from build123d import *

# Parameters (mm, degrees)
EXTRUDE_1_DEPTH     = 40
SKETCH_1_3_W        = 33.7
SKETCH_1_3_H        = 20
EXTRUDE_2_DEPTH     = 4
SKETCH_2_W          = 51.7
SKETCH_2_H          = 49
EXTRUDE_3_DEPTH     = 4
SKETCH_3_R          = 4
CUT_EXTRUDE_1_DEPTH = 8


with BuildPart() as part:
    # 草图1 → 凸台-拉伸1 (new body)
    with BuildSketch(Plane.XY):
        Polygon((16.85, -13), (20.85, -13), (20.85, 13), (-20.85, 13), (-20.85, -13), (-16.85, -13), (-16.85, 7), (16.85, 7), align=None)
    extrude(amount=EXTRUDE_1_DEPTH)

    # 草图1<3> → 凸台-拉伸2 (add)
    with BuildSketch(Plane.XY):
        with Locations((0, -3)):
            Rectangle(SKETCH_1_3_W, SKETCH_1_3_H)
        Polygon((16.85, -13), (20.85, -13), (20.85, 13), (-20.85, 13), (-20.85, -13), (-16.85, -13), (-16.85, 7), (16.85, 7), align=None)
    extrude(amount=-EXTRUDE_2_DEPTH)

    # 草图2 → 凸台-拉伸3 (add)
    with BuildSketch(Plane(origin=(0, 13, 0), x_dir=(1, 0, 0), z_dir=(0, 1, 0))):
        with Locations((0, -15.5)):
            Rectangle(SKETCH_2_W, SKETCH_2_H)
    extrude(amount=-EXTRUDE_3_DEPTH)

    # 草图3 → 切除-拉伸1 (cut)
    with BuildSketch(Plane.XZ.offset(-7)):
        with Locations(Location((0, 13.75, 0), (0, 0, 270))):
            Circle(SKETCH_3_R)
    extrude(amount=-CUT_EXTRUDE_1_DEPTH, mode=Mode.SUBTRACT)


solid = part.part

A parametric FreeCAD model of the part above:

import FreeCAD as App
import Part
import Sketcher
Q = App.Units.Quantity


def add_polygon(sketch, points):
    """Adds a closed chain of lines whose ends are joined by coincident constraints."""
    first, n = sketch.GeometryCount, len(points)
    for a, b in zip(points, points[1:] + points[:1]):
        sketch.addGeometry(Part.LineSegment(App.Vector(*a, 0), App.Vector(*b, 0)), False)
    for i in range(n):
        sketch.addConstraint(Sketcher.Constraint("Coincident", first + i, 2, first + (i + 1) % n, 1))

doc = App.newDocument("Part")
params = doc.addObject("Spreadsheet::Sheet", "Params")
for row, (alias, value) in enumerate([
    ("sketch1_width", "4 mm"),
    ("sketch1_height", "26 mm"),
    ("sketch1_height2", "20 mm"),
    ("sketch1_width2", "41.7 mm"),
    ("pad1_length", "40 mm"),
    ("sketch2_height", "26 mm"),
    ("sketch2_width", "41.7 mm"),
    ("pad2_length", "4 mm"),
    ("sketch3_height", "49 mm"),
    ("sketch3_width", "51.7 mm"),
    ("pad3_length", "4 mm"),
    ("sketch4_diameter", "8 mm"),
    ("pocket1_length", "8 mm"),
], start=1):
    params.set(f"A{row}", alias)
    params.set(f"B{row}", "=" + value)
    params.setAlias(f"B{row}", alias)

body = doc.addObject("PartDesign::Body", "Body")

sketch1 = body.newObject("Sketcher::SketchObject", "Sketch")
sketch1.AttachmentSupport = (doc.getObject("XY_Plane"), [""])
sketch1.MapMode = "FlatFace"
add_polygon(sketch1, [(16.9, -13), (20.9, -13), (20.9, 13), (-20.9, 13), (-20.9, -13), (-16.9, -13), (-16.9, 7), (16.9, 7)])
sketch1.addConstraint(Sketcher.Constraint("Horizontal", 0))
sketch1.addConstraint(Sketcher.Constraint("Vertical", 1))
sketch1.addConstraint(Sketcher.Constraint("Horizontal", 2))
sketch1.addConstraint(Sketcher.Constraint("Vertical", 3))
sketch1.addConstraint(Sketcher.Constraint("Horizontal", 4))
sketch1.addConstraint(Sketcher.Constraint("Vertical", 5))
sketch1.addConstraint(Sketcher.Constraint("Horizontal", 6))
sketch1.addConstraint(Sketcher.Constraint("Vertical", 7))
sketch1.addConstraint(Sketcher.Constraint("Symmetric", 0, 2, 2, 2, -1, 1))
sketch1.addConstraint(Sketcher.Constraint("Symmetric", 4, 2, 7, 2, -2))
sketch1.addConstraint(Sketcher.Constraint("DistanceX", 0, 1, 0, 2, Q("4 mm")))
sketch1.addConstraint(Sketcher.Constraint("DistanceY", 1, 1, 1, 2, Q("26 mm")))
sketch1.addConstraint(Sketcher.Constraint("DistanceY", 5, 1, 5, 2, Q("20 mm")))
sketch1.addConstraint(Sketcher.Constraint("DistanceX", 2, 2, 2, 1, Q("41.7 mm")))
sketch1.setExpression("Constraints[18]", "Params.sketch1_width")
sketch1.setExpression("Constraints[19]", "Params.sketch1_height")
sketch1.setExpression("Constraints[20]", "Params.sketch1_height2")
sketch1.setExpression("Constraints[21]", "Params.sketch1_width2")
pad1 = body.newObject("PartDesign::Pad", "Pad")
pad1.Profile = sketch1
pad1.setExpression("Length", "Params.pad1_length")

sketch2 = body.newObject("Sketcher::SketchObject", "Sketch001")
sketch2.AttachmentSupport = (doc.getObject("XY_Plane"), [""])
sketch2.MapMode = "FlatFace"
add_polygon(sketch2, [(21, -13), (21, 13), (-21, 13), (-21, -13)])
sketch2.addConstraint(Sketcher.Constraint("Vertical", 0))
sketch2.addConstraint(Sketcher.Constraint("Horizontal", 1))
sketch2.addConstraint(Sketcher.Constraint("Vertical", 2))
sketch2.addConstraint(Sketcher.Constraint("Horizontal", 3))
sketch2.addConstraint(Sketcher.Constraint("Symmetric", 0, 2, 2, 2, -1, 1))
sketch2.addConstraint(Sketcher.Constraint("DistanceY", 0, 1, 0, 2, Q("26 mm")))
sketch2.addConstraint(Sketcher.Constraint("DistanceX", 1, 2, 1, 1, Q("41.7 mm")))
sketch2.setExpression("Constraints[9]", "Params.sketch2_height")
sketch2.setExpression("Constraints[10]", "Params.sketch2_width")
pad2 = body.newObject("PartDesign::Pad", "Pad001")
pad2.Profile = sketch2
pad2.setExpression("Length", "Params.pad2_length")
pad2.Reversed = True

sketch3 = body.newObject("Sketcher::SketchObject", "Sketch002")
sketch3.AttachmentSupport = (doc.getObject("XZ_Plane"), [""])
sketch3.MapMode = "FlatFace"
sketch3.AttachmentOffset = App.Placement(App.Vector(0, 0, -13), App.Rotation())
add_polygon(sketch3, [(-26, -9), (-26, 40), (26, 40), (26, -9)])
sketch3.addConstraint(Sketcher.Constraint("Vertical", 0))
sketch3.addConstraint(Sketcher.Constraint("Horizontal", 1))
sketch3.addConstraint(Sketcher.Constraint("Vertical", 2))
sketch3.addConstraint(Sketcher.Constraint("Horizontal", 3))
sketch3.addConstraint(Sketcher.Constraint("DistanceY", 0, 1, 0, 2, Q("49 mm")))
sketch3.addConstraint(Sketcher.Constraint("DistanceX", 1, 1, 1, 2, Q("51.7 mm")))
sketch3.addConstraint(Sketcher.Constraint("DistanceY", -1, 1, 0, 2, Q("40 mm")))
sketch3.addConstraint(Sketcher.Constraint("DistanceX", 0, 2, -1, 1, Q("25.85 mm")))
sketch3.setExpression("Constraints[8]", "Params.sketch3_height")
sketch3.setExpression("Constraints[9]", "Params.sketch3_width")
pad3 = body.newObject("PartDesign::Pad", "Pad002")
pad3.Profile = sketch3
pad3.setExpression("Length", "Params.pad3_length")

sketch4 = body.newObject("Sketcher::SketchObject", "Sketch003")
sketch4.AttachmentSupport = (doc.getObject("XZ_Plane"), [""])
sketch4.MapMode = "FlatFace"
sketch4.AttachmentOffset = App.Placement(App.Vector(0, 0, -7), App.Rotation())
sketch4.addGeometry(Part.Circle(App.Vector(0, 13.8, 0), App.Vector(0, 0, 1), 4), False)
sketch4.addConstraint(Sketcher.Constraint("PointOnObject", 0, 3, -2))
sketch4.addConstraint(Sketcher.Constraint("Diameter", 0, Q("8 mm")))
sketch4.addConstraint(Sketcher.Constraint("DistanceY", -1, 1, 0, 3, Q("13.75 mm")))
sketch4.setExpression("Constraints[1]", "Params.sketch4_diameter")
pocket1 = body.newObject("PartDesign::Pocket", "Pocket")
pocket1.Profile = sketch4
pocket1.setExpression("Length", "Params.pocket1_length")

doc.recompute()
